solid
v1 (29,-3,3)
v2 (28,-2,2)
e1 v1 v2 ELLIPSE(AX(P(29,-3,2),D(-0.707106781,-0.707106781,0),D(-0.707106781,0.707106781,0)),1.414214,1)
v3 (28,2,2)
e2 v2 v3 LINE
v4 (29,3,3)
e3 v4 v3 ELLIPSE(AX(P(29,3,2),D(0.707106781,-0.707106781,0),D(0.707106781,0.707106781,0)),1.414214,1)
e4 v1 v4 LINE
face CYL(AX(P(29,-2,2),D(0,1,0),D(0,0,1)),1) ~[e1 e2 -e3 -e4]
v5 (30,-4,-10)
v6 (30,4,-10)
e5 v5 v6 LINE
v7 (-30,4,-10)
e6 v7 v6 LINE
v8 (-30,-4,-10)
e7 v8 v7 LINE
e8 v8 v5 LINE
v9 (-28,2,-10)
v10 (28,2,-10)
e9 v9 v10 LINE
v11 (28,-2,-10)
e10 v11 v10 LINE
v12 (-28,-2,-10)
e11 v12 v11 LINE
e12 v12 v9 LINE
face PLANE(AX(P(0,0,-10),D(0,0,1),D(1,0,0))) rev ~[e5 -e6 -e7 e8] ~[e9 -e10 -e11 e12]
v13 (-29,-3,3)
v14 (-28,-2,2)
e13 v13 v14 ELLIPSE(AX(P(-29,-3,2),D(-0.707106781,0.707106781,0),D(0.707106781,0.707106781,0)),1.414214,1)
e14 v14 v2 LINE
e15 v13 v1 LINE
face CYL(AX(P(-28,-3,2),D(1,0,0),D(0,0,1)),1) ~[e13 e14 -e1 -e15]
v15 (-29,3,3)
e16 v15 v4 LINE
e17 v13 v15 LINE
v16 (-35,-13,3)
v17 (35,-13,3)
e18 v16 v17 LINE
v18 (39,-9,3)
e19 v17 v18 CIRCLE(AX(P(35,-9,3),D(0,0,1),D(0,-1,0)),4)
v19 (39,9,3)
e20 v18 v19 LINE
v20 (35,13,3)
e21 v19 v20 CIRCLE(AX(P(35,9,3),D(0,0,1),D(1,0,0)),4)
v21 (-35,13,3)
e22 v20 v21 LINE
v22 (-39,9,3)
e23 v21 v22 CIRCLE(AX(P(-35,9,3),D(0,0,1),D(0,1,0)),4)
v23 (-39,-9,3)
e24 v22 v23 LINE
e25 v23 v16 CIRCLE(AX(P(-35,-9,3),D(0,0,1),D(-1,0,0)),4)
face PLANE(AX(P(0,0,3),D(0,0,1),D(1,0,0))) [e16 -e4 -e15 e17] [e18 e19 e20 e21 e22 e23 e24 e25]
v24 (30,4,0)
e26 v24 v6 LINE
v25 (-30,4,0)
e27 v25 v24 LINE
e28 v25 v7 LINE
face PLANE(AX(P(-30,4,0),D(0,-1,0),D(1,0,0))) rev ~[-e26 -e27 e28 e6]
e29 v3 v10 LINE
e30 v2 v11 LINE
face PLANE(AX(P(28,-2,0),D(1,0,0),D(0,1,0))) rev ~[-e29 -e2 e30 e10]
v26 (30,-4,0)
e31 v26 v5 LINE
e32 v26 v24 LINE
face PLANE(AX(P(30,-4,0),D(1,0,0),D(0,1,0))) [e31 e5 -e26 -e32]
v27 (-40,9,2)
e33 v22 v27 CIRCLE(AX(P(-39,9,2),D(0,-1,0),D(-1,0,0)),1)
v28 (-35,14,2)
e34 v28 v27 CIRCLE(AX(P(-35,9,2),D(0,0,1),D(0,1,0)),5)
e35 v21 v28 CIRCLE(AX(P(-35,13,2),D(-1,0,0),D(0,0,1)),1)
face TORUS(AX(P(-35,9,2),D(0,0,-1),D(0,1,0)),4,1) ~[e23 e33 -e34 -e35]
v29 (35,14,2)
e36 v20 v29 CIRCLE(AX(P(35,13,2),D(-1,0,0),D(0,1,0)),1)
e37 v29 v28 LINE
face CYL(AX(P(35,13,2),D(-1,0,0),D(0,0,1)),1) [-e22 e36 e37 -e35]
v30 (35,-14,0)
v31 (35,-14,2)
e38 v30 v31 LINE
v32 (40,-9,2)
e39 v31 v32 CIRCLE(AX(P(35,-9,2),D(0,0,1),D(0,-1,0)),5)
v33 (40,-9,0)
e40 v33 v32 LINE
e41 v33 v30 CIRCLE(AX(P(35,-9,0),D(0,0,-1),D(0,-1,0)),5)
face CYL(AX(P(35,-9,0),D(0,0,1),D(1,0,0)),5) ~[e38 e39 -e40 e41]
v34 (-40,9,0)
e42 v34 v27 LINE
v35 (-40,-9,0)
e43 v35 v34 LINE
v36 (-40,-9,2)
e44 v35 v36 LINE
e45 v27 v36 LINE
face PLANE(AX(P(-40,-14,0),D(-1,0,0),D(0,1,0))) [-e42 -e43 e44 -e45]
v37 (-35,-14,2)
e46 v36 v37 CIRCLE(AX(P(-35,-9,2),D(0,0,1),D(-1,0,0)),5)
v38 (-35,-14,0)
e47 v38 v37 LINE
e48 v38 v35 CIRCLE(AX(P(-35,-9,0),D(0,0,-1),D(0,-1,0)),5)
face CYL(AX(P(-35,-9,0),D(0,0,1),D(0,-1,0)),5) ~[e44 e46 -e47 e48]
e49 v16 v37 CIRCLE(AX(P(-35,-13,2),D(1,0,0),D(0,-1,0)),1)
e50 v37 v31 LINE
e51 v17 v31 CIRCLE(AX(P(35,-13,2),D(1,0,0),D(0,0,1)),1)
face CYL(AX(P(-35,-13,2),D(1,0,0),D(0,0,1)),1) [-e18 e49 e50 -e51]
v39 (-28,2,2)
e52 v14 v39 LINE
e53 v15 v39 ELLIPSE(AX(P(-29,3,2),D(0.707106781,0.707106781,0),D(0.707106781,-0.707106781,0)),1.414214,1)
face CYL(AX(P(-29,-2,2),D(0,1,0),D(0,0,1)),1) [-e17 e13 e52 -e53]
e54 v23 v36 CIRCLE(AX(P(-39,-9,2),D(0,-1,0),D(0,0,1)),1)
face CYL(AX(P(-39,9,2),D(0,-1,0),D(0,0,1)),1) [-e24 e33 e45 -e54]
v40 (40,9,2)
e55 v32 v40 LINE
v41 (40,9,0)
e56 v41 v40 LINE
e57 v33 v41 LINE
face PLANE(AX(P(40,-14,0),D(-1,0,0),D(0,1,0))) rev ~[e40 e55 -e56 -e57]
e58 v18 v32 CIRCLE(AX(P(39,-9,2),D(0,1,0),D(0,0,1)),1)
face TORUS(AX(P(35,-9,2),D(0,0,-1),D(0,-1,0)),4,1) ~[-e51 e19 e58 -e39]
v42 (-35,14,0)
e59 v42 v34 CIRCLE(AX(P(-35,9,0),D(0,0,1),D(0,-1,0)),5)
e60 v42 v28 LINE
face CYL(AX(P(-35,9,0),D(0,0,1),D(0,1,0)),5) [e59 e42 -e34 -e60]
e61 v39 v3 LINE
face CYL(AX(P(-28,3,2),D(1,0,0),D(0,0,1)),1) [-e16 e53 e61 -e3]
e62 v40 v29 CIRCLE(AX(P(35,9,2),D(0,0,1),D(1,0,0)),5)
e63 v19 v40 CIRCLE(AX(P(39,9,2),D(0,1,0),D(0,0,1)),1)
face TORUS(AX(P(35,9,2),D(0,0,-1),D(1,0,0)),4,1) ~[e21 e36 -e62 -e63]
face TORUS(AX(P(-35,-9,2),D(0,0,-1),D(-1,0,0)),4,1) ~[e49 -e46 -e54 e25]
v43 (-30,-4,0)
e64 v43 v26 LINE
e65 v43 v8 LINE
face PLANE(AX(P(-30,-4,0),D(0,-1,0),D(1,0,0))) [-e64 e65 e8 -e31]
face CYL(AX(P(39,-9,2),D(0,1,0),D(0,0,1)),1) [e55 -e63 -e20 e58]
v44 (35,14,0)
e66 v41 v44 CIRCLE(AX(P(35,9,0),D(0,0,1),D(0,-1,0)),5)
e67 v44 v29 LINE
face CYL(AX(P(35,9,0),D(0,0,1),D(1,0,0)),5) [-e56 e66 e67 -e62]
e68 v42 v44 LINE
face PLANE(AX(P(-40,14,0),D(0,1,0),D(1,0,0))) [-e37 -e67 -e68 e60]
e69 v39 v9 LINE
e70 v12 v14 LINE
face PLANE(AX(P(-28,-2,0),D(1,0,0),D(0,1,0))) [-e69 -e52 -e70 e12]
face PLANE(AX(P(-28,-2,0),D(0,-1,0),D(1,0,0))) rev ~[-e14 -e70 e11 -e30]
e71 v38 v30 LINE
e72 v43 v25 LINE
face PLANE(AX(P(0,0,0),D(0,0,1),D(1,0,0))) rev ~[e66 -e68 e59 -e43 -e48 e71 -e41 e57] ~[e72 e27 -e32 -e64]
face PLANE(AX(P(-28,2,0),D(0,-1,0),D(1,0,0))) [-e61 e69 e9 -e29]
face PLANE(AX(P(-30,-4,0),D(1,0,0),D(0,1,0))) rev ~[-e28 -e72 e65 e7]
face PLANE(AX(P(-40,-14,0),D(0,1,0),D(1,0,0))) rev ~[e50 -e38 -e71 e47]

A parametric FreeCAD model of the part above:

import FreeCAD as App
import Part
import Sketcher

V = App.Vector


def edges_at(feature, points):
    """Names of the edges that pass closest to the given points."""
    edges = feature.Shape.Edges
    near = lambda p: min(range(len(edges)), key=lambda i: edges[i].distToShape(Part.Vertex(*p))[0])
    return sorted({f"Edge{near(p) + 1}" for p in points})


def add_polygon(sketch, points):
    """Adds a closed chain of lines whose ends are joined by coincident constraints."""
    first, n = sketch.GeometryCount, len(points)
    for a, b in zip(points, points[1:] + points[:1]):
        sketch.addGeometry(Part.LineSegment(App.Vector(*a, 0), App.Vector(*b, 0)), False)
    for i in range(n):
        sketch.addConstraint(Sketcher.Constraint("Coincident", first + i, 2, first + (i + 1) % n, 1))

doc = App.newDocument("Part")
body = doc.addObject("PartDesign::Body", "Body")

sketch1 = body.newObject("Sketcher::SketchObject", "Sketch")
sketch1.AttachmentSupport = (doc.getObject("XY_Plane"), [""])
sketch1.MapMode = "FlatFace"
add_polygon(sketch1, [(-40, 14), (-40, -14), (40, -14), (40, 14)])
add_polygon(sketch1, [(28, -2), (-28, -2), (-28, 2), (28, 2)])
sketch1.addConstraint([
    Sketcher.Constraint("Vertical", 0),
    Sketcher.Constraint("Horizontal", 1),
    Sketcher.Constraint("Vertical", 2),
    Sketcher.Constraint("Horizontal", 3),
    Sketcher.Constraint("Horizontal", 4),
    Sketcher.Constraint("Vertical", 5),
    Sketcher.Constraint("Horizontal", 6),
    Sketcher.Constraint("Vertical", 7),
    Sketcher.Constraint("Symmetric", 0, 2, 2, 2, -1, 1),
    Sketcher.Constraint("Symmetric", 4, 2, 6, 2, -1, 1),
    Sketcher.Constraint("DistanceX", 1, 1, 1, 2, 80.0),
    Sketcher.Constraint("DistanceX", 4, 2, 4, 1, 56.0),
    Sketcher.Constraint("DistanceY", 0, 2, 0, 1, 28.0),
    Sketcher.Constraint("DistanceY", 5, 1, 5, 2, 4.0),
])
pad1 = body.newObject("PartDesign::Pad", "Pad")
pad1.Profile = sketch1
pad1.Length = 3

sketch2 = body.newObject("Sketcher::SketchObject", "Sketch001")
sketch2.AttachmentSupport = (doc.getObject("XY_Plane"), [""])
sketch2.MapMode = "FlatFace"
add_polygon(sketch2, [(-30, 4), (-30, -4), (30, -4), (30, 4)])
add_polygon(sketch2, [(28, -2), (-28, -2), (-28, 2), (28, 2)])
sketch2.addConstraint([
    Sketcher.Constraint("Vertical", 0),
    Sketcher.Constraint("Horizontal", 1),
    Sketcher.Constraint("Vertical", 2),
    Sketcher.Constraint("Horizontal", 3),
    Sketcher.Constraint("Horizontal", 4),
    Sketcher.Constraint("Vertical", 5),
    Sketcher.Constraint("Horizontal", 6),
    Sketcher.Constraint("Vertical", 7),
    Sketcher.Constraint("Symmetric", 0, 2, 2, 2, -1, 1),
    Sketcher.Constraint("Symmetric", 4, 2, 6, 2, -1, 1),
    Sketcher.Constraint("DistanceX", 1, 1, 1, 2, 60.0),
    Sketcher.Constraint("DistanceX", 4, 2, 4, 1, 56.0),
    Sketcher.Constraint("DistanceY", 0, 2, 0, 1, 8.0),
    Sketcher.Constraint("DistanceY", 5, 1, 5, 2, 4.0),
])
pad2 = body.newObject("PartDesign::Pad", "Pad001")
pad2.Profile = sketch2
pad2.Length = 10
pad2.Reversed = True
doc.recompute()

fillet = body.newObject("PartDesign::Fillet", "Fillet")
fillet.Base = (pad2, edges_at(pad2, [
    (-40, 14, 1.5),
    (-40, -14, 1.5),
    (40, 14, 1.5),
    (40, -14, 1.5),
]))
fillet.Radius = 5
doc.recompute()

fillet2 = body.newObject("PartDesign::Fillet", "Fillet001")
fillet2.Base = (fillet, edges_at(fillet, [
    (40, 0, 3),
    (38.536, -12.536, 3),
    (38.536, 12.536, 3),
    (0, -14, 3),
    (0, 14, 3),
    (-38.536, -12.536, 3),
    (-38.536, 12.536, 3),
    (-40, 0, 3),
    (0, 2, 3),
    (28, 0, 3),
    (0, -2, 3),
    (-28, 0, 3),
]))
fillet2.Radius = 1

doc.recompute()
